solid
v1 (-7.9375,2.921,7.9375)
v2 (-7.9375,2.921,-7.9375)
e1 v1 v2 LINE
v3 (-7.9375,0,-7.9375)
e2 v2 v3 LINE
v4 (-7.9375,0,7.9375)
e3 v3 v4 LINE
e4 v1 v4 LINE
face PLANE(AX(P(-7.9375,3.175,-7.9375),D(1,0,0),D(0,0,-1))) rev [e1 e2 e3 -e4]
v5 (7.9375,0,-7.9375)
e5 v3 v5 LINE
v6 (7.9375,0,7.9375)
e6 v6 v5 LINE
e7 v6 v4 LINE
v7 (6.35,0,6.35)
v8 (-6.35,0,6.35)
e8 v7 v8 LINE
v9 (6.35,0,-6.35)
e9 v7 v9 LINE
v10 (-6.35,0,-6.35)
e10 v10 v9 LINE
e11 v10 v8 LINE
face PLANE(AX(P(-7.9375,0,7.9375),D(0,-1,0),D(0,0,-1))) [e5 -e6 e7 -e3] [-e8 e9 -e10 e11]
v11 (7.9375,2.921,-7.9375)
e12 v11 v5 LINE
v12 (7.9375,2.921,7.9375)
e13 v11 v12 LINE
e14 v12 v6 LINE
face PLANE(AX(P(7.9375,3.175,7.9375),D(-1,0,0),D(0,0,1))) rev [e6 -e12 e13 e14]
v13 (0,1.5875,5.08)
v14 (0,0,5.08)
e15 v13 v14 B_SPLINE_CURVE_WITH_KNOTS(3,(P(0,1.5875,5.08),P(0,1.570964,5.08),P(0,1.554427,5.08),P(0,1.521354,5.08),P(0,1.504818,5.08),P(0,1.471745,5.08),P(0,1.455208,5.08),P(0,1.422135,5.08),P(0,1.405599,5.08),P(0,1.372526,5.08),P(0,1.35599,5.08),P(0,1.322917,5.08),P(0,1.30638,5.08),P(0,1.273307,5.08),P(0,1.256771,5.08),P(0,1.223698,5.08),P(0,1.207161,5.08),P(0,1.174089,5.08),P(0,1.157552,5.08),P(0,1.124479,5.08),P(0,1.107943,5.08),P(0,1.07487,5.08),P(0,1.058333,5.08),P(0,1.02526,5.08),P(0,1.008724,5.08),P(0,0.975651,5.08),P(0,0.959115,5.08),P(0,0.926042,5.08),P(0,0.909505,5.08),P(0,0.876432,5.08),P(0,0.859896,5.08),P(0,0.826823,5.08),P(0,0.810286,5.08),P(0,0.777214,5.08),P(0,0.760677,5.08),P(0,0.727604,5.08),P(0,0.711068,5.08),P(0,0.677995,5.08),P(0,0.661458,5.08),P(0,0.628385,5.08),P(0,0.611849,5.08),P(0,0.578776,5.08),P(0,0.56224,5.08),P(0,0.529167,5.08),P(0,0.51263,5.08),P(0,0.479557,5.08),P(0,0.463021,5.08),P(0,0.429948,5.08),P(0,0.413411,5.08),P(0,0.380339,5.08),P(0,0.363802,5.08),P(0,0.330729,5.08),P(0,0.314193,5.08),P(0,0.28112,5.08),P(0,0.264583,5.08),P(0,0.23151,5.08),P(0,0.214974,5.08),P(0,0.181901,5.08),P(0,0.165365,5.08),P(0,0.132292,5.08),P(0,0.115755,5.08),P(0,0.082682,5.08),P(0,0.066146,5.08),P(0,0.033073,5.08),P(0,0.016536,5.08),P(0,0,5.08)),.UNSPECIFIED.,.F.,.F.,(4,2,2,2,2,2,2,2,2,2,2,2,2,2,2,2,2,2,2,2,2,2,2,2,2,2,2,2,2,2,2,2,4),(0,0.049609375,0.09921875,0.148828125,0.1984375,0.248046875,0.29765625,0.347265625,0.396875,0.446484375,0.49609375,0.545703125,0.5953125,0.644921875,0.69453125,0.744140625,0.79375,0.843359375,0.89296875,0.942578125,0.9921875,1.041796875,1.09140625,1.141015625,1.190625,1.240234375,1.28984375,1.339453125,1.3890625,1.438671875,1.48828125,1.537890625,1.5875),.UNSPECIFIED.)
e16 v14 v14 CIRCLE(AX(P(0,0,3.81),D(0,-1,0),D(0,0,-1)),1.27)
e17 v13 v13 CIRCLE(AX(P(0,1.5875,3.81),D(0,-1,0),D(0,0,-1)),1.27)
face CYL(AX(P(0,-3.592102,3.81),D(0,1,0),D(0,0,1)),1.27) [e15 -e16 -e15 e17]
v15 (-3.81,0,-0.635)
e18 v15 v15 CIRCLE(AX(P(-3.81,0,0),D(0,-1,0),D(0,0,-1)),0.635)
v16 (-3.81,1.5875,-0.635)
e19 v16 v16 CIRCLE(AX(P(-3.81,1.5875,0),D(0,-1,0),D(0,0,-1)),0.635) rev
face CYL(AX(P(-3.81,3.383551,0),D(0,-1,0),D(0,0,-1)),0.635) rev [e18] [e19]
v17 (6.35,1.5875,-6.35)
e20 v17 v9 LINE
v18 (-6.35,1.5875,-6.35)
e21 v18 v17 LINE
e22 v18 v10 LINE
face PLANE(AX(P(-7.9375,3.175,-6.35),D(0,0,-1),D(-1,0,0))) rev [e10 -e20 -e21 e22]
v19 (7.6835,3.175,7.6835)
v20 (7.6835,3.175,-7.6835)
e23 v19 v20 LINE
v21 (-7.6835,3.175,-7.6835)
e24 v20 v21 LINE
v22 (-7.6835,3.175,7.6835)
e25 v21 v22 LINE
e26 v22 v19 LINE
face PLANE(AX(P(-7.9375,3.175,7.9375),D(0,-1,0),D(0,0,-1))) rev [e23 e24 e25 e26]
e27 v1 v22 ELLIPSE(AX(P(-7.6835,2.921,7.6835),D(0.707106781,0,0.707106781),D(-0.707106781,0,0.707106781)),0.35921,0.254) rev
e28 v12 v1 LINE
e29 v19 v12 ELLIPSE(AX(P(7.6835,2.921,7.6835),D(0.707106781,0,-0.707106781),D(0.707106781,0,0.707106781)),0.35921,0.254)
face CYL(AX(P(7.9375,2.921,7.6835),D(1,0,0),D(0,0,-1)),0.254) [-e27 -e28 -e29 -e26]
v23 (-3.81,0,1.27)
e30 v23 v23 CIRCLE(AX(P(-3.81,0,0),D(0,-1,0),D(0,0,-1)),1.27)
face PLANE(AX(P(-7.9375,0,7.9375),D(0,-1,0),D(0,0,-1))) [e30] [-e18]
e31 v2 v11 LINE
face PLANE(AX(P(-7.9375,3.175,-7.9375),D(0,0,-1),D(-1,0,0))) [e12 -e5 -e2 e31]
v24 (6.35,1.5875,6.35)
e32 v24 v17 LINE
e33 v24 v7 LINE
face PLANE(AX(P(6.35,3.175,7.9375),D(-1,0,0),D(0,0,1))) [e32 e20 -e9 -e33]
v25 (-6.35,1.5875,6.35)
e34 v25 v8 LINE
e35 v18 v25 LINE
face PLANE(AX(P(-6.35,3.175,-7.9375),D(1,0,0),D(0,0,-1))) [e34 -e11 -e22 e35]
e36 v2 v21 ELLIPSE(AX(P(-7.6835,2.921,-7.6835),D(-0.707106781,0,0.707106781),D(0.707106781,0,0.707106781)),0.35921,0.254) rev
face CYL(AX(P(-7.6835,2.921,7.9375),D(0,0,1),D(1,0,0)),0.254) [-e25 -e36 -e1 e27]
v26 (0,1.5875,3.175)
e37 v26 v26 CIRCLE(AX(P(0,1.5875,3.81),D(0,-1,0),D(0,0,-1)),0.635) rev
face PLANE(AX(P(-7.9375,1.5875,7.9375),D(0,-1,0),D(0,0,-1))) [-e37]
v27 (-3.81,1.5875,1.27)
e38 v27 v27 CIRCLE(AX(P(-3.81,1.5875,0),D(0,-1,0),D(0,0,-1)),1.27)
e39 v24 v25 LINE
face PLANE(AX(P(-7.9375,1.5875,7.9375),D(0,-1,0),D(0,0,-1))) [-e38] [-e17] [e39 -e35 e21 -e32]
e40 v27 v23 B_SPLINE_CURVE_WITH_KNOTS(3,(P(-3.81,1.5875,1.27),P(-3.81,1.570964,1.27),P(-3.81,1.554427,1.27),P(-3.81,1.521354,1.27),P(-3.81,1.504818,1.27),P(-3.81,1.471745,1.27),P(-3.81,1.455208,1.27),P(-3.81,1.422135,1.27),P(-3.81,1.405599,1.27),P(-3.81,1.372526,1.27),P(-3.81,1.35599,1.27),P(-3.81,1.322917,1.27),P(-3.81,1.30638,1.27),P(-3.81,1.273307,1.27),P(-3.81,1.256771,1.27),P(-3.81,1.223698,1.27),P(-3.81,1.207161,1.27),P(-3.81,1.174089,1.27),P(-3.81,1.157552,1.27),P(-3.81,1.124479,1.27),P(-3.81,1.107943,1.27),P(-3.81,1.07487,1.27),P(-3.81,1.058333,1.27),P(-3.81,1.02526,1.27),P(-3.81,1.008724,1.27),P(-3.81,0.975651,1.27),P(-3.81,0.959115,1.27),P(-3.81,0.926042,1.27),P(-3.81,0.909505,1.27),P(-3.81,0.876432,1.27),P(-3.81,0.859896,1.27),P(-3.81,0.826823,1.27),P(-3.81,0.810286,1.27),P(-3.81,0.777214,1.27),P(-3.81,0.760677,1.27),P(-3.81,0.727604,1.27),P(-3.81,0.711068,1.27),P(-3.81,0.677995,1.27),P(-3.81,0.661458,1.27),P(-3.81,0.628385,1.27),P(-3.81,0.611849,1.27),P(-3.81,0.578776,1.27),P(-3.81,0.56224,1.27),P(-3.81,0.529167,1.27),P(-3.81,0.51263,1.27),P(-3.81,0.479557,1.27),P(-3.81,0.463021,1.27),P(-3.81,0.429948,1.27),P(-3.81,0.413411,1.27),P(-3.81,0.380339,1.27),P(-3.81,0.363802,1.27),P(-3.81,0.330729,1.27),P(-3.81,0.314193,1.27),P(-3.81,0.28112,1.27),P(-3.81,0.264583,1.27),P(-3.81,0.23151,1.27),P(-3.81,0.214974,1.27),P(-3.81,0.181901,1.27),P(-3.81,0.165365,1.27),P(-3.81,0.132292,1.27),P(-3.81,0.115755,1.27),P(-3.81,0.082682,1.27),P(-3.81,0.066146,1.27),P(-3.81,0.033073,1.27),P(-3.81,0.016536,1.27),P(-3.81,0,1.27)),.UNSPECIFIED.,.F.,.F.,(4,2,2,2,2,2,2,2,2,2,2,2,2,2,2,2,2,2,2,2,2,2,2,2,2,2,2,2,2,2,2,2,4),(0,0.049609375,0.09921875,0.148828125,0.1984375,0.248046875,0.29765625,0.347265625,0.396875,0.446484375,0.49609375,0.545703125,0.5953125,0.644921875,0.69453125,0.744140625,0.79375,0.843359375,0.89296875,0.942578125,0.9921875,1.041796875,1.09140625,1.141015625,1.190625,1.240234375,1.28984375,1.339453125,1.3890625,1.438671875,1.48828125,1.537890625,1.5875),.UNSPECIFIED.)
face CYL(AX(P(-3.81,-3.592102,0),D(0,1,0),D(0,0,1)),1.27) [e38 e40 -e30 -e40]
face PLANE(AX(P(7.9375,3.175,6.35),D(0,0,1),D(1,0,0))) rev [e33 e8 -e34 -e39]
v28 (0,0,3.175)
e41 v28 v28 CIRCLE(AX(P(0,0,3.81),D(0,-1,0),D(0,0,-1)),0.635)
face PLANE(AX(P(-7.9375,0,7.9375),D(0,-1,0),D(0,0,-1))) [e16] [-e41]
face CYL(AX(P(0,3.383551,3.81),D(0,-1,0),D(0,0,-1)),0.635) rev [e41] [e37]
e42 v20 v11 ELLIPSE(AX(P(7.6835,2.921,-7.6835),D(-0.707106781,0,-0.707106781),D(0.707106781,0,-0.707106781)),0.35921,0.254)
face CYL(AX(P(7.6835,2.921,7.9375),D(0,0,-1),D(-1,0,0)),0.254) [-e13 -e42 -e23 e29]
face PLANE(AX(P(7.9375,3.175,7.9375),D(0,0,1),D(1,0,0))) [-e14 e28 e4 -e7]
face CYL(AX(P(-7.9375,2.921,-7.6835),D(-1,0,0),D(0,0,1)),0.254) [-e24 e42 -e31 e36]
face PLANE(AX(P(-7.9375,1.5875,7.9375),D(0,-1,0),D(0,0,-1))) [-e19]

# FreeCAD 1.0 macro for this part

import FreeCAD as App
import Part
import Sketcher

V = App.Vector
Q = App.Units.Quantity


def edges_at(feature, points):
    """Names of the edges that pass closest to the given points."""
    edges = feature.Shape.Edges
    near = lambda p: min(range(len(edges)), key=lambda i: edges[i].distToShape(Part.Vertex(*p))[0])
    return sorted({f"Edge{near(p) + 1}" for p in points})


def faces_at(feature, points):
    """Names of the faces that lie closest to the given points."""
    faces = feature.Shape.Faces
    near = lambda p: min(range(len(faces)), key=lambda i: faces[i].distToShape(Part.Vertex(*p))[0])
    return sorted({f"Face{near(p) + 1}" for p in points})

doc = App.newDocument("Part")
body = doc.addObject("PartDesign::Body", "Body")

# Sketch on XZ plane
sketch1 = body.newObject("Sketcher::SketchObject", "Sketch")
sketch1.AttachmentSupport = (doc.getObject("XZ_Plane"), [""])
sketch1.MapMode = "FlatFace"
sketch1.addGeometry(Part.LineSegment(V(-7.9375, -7.9375, 0), V(-7.9375, 7.9375, 0)), False)
sketch1.addGeometry(Part.LineSegment(V(-7.9375, 7.9375, 0), V(7.9375, 7.9375, 0)), False)
sketch1.addGeometry(Part.LineSegment(V(7.9375, 7.9375, 0), V(7.9375, -7.9375, 0)), False)
sketch1.addGeometry(Part.LineSegment(V(7.9375, -7.9375, 0), V(-7.9375, -7.9375, 0)), False)
sketch1.addConstraint(Sketcher.Constraint("Coincident", 0, 2, 1, 1))
sketch1.addConstraint(Sketcher.Constraint("Coincident", 1, 2, 2, 1))
sketch1.addConstraint(Sketcher.Constraint("Coincident", 2, 2, 3, 1))
sketch1.addConstraint(Sketcher.Constraint("Coincident", 3, 2, 0, 1))
sketch1.addConstraint(Sketcher.Constraint("Vertical", 0))
sketch1.addConstraint(Sketcher.Constraint("Horizontal", 1))
sketch1.addConstraint(Sketcher.Constraint("Vertical", 2))
sketch1.addConstraint(Sketcher.Constraint("Horizontal", 3))
sketch1.addConstraint(Sketcher.Constraint("Symmetric", 0, 2, 2, 2, -1, 1))
sketch1.addConstraint(Sketcher.Constraint("Equal", 3, 0))
sketch1.addConstraint(Sketcher.Constraint("DistanceX", 1, 1, 1, 2, Q("0.625 in")))
pad1 = body.newObject("PartDesign::Pad", "Pad")
pad1.Profile = sketch1
pad1.Length = Q("0.125 in")
pad1.Reversed = True
doc.recompute()

thickness = body.newObject("PartDesign::Thickness", "Thickness")
thickness.Base = (pad1, faces_at(pad1, [(0, 0, 0)]))
thickness.Value = Q("0.0625 in")
thickness.Reversed = True
thickness.Join = "Intersection"

# Sketch on XZ plane
sketch2 = body.newObject("Sketcher::SketchObject", "Sketch001")
sketch2.AttachmentSupport = (doc.getObject("XZ_Plane"), [""])
sketch2.MapMode = "FlatFace"
sketch2.AttachmentOffset = App.Placement(V(0, 0, -0.0625 * 25.4), App.Rotation())
sketch2.addGeometry(Part.Circle(V(-3.81, 0, 0), V(0, 0, 1), 1.27), False)
sketch2.addGeometry(Part.Circle(V(0, 3.81, 0), V(0, 0, 1), 1.27), False)
sketch2.addConstraint(Sketcher.Constraint("Equal", 0, 1))
sketch2.addConstraint(Sketcher.Constraint("PointOnObject", 0, 3, -1))
sketch2.addConstraint(Sketcher.Constraint("PointOnObject", 1, 3, -2))
sketch2.addConstraint(Sketcher.Constraint("Diameter", 0, Q("0.1 in")))
sketch2.addConstraint(Sketcher.Constraint("DistanceX", 0, 3, -1, 1, Q("0.15 in")))
sketch2.addConstraint(Sketcher.Constraint("DistanceY", -1, 1, 1, 3, Q("0.15 in")))
pad2 = body.newObject("PartDesign::Pad", "Pad001")
pad2.Profile = sketch2
pad2.Length = Q("0.0625 in")

# Sketch on XZ plane
sketch3 = body.newObject("Sketcher::SketchObject", "Sketch002")
sketch3.AttachmentSupport = (doc.getObject("XZ_Plane"), [""])
sketch3.MapMode = "FlatFace"
sketch3.AttachmentOffset = App.Placement(V(0, 0, -0.0625 * 25.4), App.Rotation())
sketch3.addGeometry(Part.Circle(V(0, 3.81, 0), V(0, 0, 1), 0.635), False)
sketch3.addGeometry(Part.Circle(V(-3.81, 0, 0), V(0, 0, 1), 0.635), False)
sketch3.addConstraint(Sketcher.Constraint("Equal", 0, 1))
sketch3.addConstraint(Sketcher.Constraint("PointOnObject", 0, 3, -2))
sketch3.addConstraint(Sketcher.Constraint("PointOnObject", 1, 3, -1))
sketch3.addConstraint(Sketcher.Constraint("Diameter", 0, Q("0.05 in")))
sketch3.addConstraint(Sketcher.Constraint("DistanceY", -1, 1, 0, 3, Q("0.15 in")))
sketch3.addConstraint(Sketcher.Constraint("DistanceX", 1, 3, -1, 1, Q("0.15 in")))
pocket1 = body.newObject("PartDesign::Pocket", "Pocket")
pocket1.Profile = sketch3
pocket1.Length = Q("0.0625 in")
pocket1.Reversed = True
doc.recompute()

fillet = body.newObject("PartDesign::Fillet", "Fillet")
fillet.Base = (pocket1, edges_at(pocket1, [
    (7.938, 3.175, 0),
    (0, 3.175, -7.938),
    (-7.938, 3.175, 0),
    (0, 3.175, 7.938),
]))
fillet.Radius = Q("0.01 in")

doc.recompute()
